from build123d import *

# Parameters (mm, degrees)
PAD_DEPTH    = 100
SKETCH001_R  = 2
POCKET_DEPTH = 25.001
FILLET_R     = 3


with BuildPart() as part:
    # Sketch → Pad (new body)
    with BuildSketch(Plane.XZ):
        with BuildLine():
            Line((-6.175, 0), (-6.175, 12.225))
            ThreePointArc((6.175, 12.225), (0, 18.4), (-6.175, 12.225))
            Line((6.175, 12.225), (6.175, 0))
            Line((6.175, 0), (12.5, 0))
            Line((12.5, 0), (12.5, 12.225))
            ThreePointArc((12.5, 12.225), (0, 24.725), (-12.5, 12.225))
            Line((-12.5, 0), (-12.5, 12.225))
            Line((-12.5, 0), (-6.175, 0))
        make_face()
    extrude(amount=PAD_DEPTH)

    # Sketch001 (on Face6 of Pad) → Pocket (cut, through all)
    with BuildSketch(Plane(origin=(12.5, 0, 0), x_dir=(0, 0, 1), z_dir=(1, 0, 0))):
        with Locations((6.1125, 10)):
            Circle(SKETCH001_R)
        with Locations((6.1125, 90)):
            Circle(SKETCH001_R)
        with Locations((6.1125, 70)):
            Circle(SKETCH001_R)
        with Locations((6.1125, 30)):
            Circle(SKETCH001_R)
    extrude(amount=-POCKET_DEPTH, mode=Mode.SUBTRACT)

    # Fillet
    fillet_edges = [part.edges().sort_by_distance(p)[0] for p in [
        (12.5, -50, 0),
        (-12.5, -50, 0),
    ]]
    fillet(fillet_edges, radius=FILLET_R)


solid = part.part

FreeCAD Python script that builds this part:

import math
import FreeCAD as App
import Part
import Sketcher


def edges_at(feature, points):
    """Names of the edges that pass closest to the given points."""
    edges = feature.Shape.Edges
    near = lambda p: min(range(len(edges)), key=lambda i: edges[i].distToShape(Part.Vertex(*p))[0])
    return sorted({f"Edge{near(p) + 1}" for p in points})

doc = App.newDocument("Part")
body = doc.addObject("PartDesign::Body", "Body")

# Sketch on XZ plane
sketch1 = doc.addObject("Sketcher::SketchObject", "Sketch")
body.addObject(sketch1)
sketch1.AttachmentSupport = (doc.XZ_Plane, [""])
sketch1.MapMode = "FlatFace"
sketch1.addGeometry(Part.LineSegment(App.Vector(-6, 0, 0), App.Vector(-6, 12, 0)), False)
sketch1.addGeometry(Part.ArcOfCircle(Part.Circle(App.Vector(0, 12, 0), App.Vector(0, 0, 1), 6), math.radians(0), math.radians(180)), False)
sketch1.addGeometry(Part.LineSegment(App.Vector(6, 12, 0), App.Vector(6, 0, 0)), False)
sketch1.addGeometry(Part.LineSegment(App.Vector(6, 0, 0), App.Vector(12, 0, 0)), False)
sketch1.addGeometry(Part.LineSegment(App.Vector(12, 0, 0), App.Vector(12, 12, 0)), False)
sketch1.addGeometry(Part.ArcOfCircle(Part.Circle(App.Vector(0, 12, 0), App.Vector(0, 0, 1), 12), math.radians(0), math.radians(180)), False)
sketch1.addGeometry(Part.LineSegment(App.Vector(-12, 12, 0), App.Vector(-12, 0, 0)), False)
sketch1.addGeometry(Part.LineSegment(App.Vector(-12, 0, 0), App.Vector(-6, 0, 0)), False)
sketch1.addConstraint(Sketcher.Constraint("Tangent", 0, 2, 1, 2))
sketch1.addConstraint(Sketcher.Constraint("Tangent", 1, 1, 2, 1))
sketch1.addConstraint(Sketcher.Constraint("Coincident", 2, 2, 3, 1))
sketch1.addConstraint(Sketcher.Constraint("Coincident", 3, 2, 4, 1))
sketch1.addConstraint(Sketcher.Constraint("Tangent", 4, 2, 5, 1))
sketch1.addConstraint(Sketcher.Constraint("Tangent", 5, 2, 6, 1))
sketch1.addConstraint(Sketcher.Constraint("Coincident", 6, 2, 7, 1))
sketch1.addConstraint(Sketcher.Constraint("Coincident", 7, 2, 0, 1))
sketch1.addConstraint(Sketcher.Constraint("Vertical", 0))
sketch1.addConstraint(Sketcher.Constraint("Vertical", 2))
sketch1.addConstraint(Sketcher.Constraint("Horizontal", 3))
sketch1.addConstraint(Sketcher.Constraint("Vertical", 4))
sketch1.addConstraint(Sketcher.Constraint("Vertical", 6))
sketch1.addConstraint(Sketcher.Constraint("Horizontal", 7))
sketch1.addConstraint(Sketcher.Constraint("Coincident", 5, 3, 1, 3))
sketch1.addConstraint(Sketcher.Constraint("Symmetric", 3, 2, 6, 2, -1, 1))
sketch1.addConstraint(Sketcher.Constraint("PointOnObject", 2, 2, -1))
sketch1.addConstraint(Sketcher.Constraint("Radius", 5, 12.5))
sketch1.addConstraint(Sketcher.Constraint("Radius", 1, 6.175))
sketch1.addConstraint(Sketcher.Constraint("DistanceY", 0, 1, 0, 2, 12.225))
pad1 = doc.addObject("PartDesign::Pad", "Pad")
body.addObject(pad1)
pad1.Profile = sketch1
pad1.Length = 100

# Sketch on YZ plane
sketch2 = doc.addObject("Sketcher::SketchObject", "Sketch001")
body.addObject(sketch2)
sketch2.AttachmentSupport = (doc.YZ_Plane, [""])
sketch2.MapMode = "FlatFace"
sketch2.AttachmentOffset = App.Placement(App.Vector(0, 0, 12.5), App.Rotation())
sketch2.addGeometry(Part.Circle(App.Vector(-10, 6.1, 0), App.Vector(0, 0, 1), 2), False)
sketch2.addGeometry(Part.Circle(App.Vector(-90, 6.1, 0), App.Vector(0, 0, 1), 2), False)
sketch2.addGeometry(Part.Circle(App.Vector(-70, 6.1, 0), App.Vector(0, 0, 1), 2), False)
sketch2.addGeometry(Part.Circle(App.Vector(-30, 6.1, 0), App.Vector(0, 0, 1), 2), False)
sketch2.addConstraint(Sketcher.Constraint("Equal", 0, 1))
sketch2.addConstraint(Sketcher.Constraint("Equal", 1, 2))
sketch2.addConstraint(Sketcher.Constraint("Equal", 2, 3))
sketch2.addConstraint(Sketcher.Constraint("Horizontal", 0, 3, 1, 3))
sketch2.addConstraint(Sketcher.Constraint("Horizontal", 1, 3, 2, 3))
sketch2.addConstraint(Sketcher.Constraint("Horizontal", 2, 3, 3, 3))
sketch2.addConstraint(Sketcher.Constraint("Diameter", 0, 4.0))
sketch2.addConstraint(Sketcher.Constraint("DistanceX", 0, 3, -1, 1, 10.0))
sketch2.addConstraint(Sketcher.Constraint("DistanceX", 1, 3, -1, 1, 90.0))
sketch2.addConstraint(Sketcher.Constraint("DistanceX", 2, 3, -1, 1, 70.0))
sketch2.addConstraint(Sketcher.Constraint("DistanceX", 3, 3, -1, 1, 30.0))
sketch2.addConstraint(Sketcher.Constraint("DistanceY", -1, 1, 0, 3, 6.1125))
pocket1 = doc.addObject("PartDesign::Pocket", "Pocket")
body.addObject(pocket1)
pocket1.Profile = sketch2
pocket1.Type = "ThroughAll"
doc.recompute()

fillet = doc.addObject("PartDesign::Fillet", "Fillet")
body.addObject(fillet)
fillet.Base = (pocket1, edges_at(pocket1, [(12.5, -50, 0), (-12.5, -50, 0)]))
fillet.Radius = 3

doc.recompute()
